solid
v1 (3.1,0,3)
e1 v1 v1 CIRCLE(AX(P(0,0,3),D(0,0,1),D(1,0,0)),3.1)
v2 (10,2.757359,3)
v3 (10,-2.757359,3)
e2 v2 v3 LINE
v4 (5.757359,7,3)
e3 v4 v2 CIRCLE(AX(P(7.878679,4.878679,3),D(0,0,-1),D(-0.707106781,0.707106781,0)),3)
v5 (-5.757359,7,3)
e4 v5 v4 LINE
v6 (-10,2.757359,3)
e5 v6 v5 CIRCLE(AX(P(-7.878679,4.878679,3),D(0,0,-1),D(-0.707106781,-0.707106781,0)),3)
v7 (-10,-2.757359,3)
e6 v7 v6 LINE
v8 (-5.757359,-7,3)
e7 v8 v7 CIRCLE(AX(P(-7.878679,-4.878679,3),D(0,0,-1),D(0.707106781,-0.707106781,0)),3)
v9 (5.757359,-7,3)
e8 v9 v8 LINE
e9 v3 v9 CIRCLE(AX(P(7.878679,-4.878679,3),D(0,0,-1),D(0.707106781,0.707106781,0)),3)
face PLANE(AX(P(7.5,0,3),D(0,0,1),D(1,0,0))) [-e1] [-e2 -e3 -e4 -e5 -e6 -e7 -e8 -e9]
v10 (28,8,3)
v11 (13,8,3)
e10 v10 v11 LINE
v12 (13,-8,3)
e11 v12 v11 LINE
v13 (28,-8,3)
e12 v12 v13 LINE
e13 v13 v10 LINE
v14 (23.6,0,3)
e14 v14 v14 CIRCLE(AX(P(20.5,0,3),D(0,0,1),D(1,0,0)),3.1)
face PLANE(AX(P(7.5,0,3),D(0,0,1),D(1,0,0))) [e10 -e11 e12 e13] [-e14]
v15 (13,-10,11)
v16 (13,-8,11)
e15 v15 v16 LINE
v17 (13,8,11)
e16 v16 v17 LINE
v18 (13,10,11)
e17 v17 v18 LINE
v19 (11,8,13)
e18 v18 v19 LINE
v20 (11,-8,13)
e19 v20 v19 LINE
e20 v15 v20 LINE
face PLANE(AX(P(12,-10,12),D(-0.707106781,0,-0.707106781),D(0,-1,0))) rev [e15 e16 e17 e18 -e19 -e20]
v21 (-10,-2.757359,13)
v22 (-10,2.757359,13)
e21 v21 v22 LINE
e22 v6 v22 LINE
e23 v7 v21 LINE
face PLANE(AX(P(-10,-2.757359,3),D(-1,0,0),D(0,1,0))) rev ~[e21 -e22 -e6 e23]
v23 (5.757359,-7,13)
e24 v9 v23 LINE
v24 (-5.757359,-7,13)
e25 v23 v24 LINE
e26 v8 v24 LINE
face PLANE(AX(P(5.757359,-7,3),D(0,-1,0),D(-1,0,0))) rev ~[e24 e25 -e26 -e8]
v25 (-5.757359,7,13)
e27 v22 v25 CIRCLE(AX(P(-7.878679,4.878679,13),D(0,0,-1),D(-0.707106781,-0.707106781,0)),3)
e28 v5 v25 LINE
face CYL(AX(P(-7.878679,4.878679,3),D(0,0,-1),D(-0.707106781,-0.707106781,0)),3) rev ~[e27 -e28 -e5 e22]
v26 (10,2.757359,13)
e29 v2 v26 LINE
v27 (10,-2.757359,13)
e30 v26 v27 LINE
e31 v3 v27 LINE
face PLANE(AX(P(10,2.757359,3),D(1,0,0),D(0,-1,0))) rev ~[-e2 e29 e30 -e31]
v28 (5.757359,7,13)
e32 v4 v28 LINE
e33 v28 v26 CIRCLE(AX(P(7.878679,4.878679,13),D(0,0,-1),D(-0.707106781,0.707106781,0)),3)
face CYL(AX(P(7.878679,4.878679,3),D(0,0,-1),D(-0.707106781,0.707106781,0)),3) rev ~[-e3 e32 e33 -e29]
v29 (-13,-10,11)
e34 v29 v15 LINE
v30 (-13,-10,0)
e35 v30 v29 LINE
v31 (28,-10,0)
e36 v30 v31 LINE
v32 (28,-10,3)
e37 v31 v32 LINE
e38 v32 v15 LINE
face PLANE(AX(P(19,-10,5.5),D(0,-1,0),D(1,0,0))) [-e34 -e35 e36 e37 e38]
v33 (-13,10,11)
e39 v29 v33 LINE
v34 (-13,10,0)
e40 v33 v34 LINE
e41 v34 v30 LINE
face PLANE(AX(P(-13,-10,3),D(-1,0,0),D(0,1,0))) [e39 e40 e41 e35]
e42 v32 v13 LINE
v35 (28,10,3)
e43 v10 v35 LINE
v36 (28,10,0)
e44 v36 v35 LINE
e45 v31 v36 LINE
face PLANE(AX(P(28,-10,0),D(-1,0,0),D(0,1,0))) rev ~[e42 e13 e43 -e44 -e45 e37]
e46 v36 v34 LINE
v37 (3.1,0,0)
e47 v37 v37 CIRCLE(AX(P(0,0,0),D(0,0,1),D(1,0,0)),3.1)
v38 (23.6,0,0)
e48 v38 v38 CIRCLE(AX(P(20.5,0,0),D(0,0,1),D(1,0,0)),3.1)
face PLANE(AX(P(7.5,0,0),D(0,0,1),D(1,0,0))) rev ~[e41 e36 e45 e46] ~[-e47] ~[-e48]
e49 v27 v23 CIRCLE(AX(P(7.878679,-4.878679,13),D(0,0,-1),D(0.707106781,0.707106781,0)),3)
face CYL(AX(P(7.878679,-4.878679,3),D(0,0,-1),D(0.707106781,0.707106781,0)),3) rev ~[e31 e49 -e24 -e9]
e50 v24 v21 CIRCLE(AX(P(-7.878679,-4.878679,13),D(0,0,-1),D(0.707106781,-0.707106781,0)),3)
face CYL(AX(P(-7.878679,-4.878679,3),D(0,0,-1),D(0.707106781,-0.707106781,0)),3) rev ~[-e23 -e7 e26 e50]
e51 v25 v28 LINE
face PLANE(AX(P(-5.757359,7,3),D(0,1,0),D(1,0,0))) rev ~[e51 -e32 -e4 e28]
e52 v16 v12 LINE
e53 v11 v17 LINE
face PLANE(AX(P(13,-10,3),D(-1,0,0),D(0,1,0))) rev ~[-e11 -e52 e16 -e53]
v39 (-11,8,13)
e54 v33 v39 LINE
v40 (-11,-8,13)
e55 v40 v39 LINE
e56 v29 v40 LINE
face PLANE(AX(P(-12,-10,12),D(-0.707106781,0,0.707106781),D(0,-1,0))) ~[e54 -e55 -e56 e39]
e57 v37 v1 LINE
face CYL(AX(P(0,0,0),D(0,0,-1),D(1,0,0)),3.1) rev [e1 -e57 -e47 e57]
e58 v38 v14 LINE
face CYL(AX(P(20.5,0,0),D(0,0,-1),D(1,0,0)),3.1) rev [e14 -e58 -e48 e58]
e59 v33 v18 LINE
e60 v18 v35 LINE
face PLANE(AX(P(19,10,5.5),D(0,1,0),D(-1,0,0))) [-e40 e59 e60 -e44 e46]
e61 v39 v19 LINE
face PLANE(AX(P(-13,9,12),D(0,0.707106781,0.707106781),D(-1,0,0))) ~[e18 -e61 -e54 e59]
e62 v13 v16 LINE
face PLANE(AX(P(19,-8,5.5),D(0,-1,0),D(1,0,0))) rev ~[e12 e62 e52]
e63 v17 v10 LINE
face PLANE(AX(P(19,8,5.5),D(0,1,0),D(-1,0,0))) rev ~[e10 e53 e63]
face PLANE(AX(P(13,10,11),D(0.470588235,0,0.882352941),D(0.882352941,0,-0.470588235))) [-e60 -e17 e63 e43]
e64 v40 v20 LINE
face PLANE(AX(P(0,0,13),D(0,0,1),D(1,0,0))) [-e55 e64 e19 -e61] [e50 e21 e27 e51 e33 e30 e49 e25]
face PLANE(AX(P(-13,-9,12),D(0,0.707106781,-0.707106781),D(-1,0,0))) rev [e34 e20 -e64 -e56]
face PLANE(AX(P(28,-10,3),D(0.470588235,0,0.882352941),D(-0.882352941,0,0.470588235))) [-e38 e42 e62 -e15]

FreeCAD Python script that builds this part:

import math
import FreeCAD as App
import Part
import Sketcher
Q = App.Units.Quantity


def edges_at(feature, points):
    """Names of the edges that pass closest to the given points."""
    edges = feature.Shape.Edges
    near = lambda p: min(range(len(edges)), key=lambda i: edges[i].distToShape(Part.Vertex(*p))[0])
    return sorted({f"Edge{near(p) + 1}" for p in points})


def add_polygon(sketch, points):
    """Adds a closed chain of lines whose ends are joined by coincident constraints."""
    first, n = sketch.GeometryCount, len(points)
    for a, b in zip(points, points[1:] + points[:1]):
        sketch.addGeometry(Part.LineSegment(App.Vector(*a, 0), App.Vector(*b, 0)), False)
    for i in range(n):
        sketch.addConstraint(Sketcher.Constraint("Coincident", first + i, 2, first + (i + 1) % n, 1))

doc = App.newDocument("Part")
body = doc.addObject("PartDesign::Body", "Body")

sketch1 = doc.addObject("Sketcher::SketchObject", "Sketch")
body.addObject(sketch1)
sketch1.AttachmentSupport = (doc.XY_Plane, [""])
sketch1.MapMode = "FlatFace"
add_polygon(sketch1, [(-13, -10), (28, -10), (28, 10), (-13, 10)])
sketch1.addGeometry(Part.Circle(App.Vector(0, 0, 0), App.Vector(0, 0, 1), 3.1), False)
sketch1.addGeometry(Part.Circle(App.Vector(20.5, 0, 0), App.Vector(0, 0, 1), 3.1), False)
sketch1.addConstraint([
    Sketcher.Constraint("Horizontal", 0),
    Sketcher.Constraint("Vertical", 1),
    Sketcher.Constraint("Horizontal", 2),
    Sketcher.Constraint("Vertical", 3),
    Sketcher.Constraint("Coincident", 4, 3, -1, 1),
    Sketcher.Constraint("Equal", 4, 5),
    Sketcher.Constraint("PointOnObject", 5, 3, -1),
    Sketcher.Constraint("Diameter", 4, Q("6.2 mm")),
    Sketcher.Constraint("DistanceX", 0, 1, 0, 2, Q("41 mm")),
    Sketcher.Constraint("DistanceY", 1, 1, 1, 2, Q("20 mm")),
    Sketcher.Constraint("DistanceX", -1, 1, 0, 2, Q("28 mm")),
    Sketcher.Constraint("DistanceY", 0, 2, -1, 1, Q("10 mm")),
    Sketcher.Constraint("DistanceX", -1, 1, 5, 3, Q("20.5 mm")),
])
pad1 = doc.addObject("PartDesign::Pad", "Pad")
body.addObject(pad1)
pad1.Profile = sketch1
pad1.Length = 3

sketch2 = doc.addObject("Sketcher::SketchObject", "Sketch001")
body.addObject(sketch2)
sketch2.AttachmentSupport = (doc.XY_Plane, [""])
sketch2.MapMode = "FlatFace"
sketch2.AttachmentOffset = App.Placement(App.Vector(0, 0, 3), App.Rotation())
add_polygon(sketch2, [(-13, 10), (-13, -10), (13, -10), (13, 10)])
sketch2.addGeometry(Part.LineSegment(App.Vector(-10, -2.8, 0), App.Vector(-10, 2.8, 0)), False)
sketch2.addGeometry(Part.ArcOfCircle(Part.Circle(App.Vector(-7.9, 4.9, 0), App.Vector(0, 0, 1), 3), math.radians(45), math.radians(225)), False)
sketch2.addGeometry(Part.LineSegment(App.Vector(-5.8, 7, 0), App.Vector(5.8, 7, 0)), False)
sketch2.addGeometry(Part.ArcOfCircle(Part.Circle(App.Vector(7.9, 4.9, 0), App.Vector(0, 0, 1), 3), math.radians(-45), math.radians(135)), False)
sketch2.addGeometry(Part.LineSegment(App.Vector(10, 2.8, 0), App.Vector(10, -2.8, 0)), False)
sketch2.addGeometry(Part.ArcOfCircle(Part.Circle(App.Vector(7.9, -4.9, 0), App.Vector(0, 0, 1), 3), math.radians(-135), math.radians(45)), False)
sketch2.addGeometry(Part.LineSegment(App.Vector(5.8, -7, 0), App.Vector(-5.8, -7, 0)), False)
sketch2.addGeometry(Part.ArcOfCircle(Part.Circle(App.Vector(-7.9, -4.9, 0), App.Vector(0, 0, 1), 3), math.radians(135), math.radians(315)), False)
sketch2.addConstraint([
    Sketcher.Constraint("Coincident", 4, 2, 5, 2),
    Sketcher.Constraint("Coincident", 5, 1, 6, 1),
    Sketcher.Constraint("Coincident", 6, 2, 7, 2),
    Sketcher.Constraint("Coincident", 7, 1, 8, 1),
    Sketcher.Constraint("Coincident", 8, 2, 9, 2),
    Sketcher.Constraint("Coincident", 9, 1, 10, 1),
    Sketcher.Constraint("Coincident", 10, 2, 11, 2),
    Sketcher.Constraint("Coincident", 11, 1, 4, 1),
    Sketcher.Constraint("Vertical", 0),
    Sketcher.Constraint("Horizontal", 1),
    Sketcher.Constraint("Vertical", 2),
    Sketcher.Constraint("Horizontal", 3),
    Sketcher.Constraint("Vertical", 4),
    Sketcher.Constraint("Horizontal", 6),
    Sketcher.Constraint("Vertical", 8),
    Sketcher.Constraint("Horizontal", 10),
    Sketcher.Constraint("Equal", 5, 7),
    Sketcher.Constraint("Equal", 7, 9),
    Sketcher.Constraint("Equal", 9, 11),
    Sketcher.Constraint("Symmetric", 5, 3, 9, 3, -1, 1),
    Sketcher.Constraint("Symmetric", 7, 3, 11, 3, -1, 1),
    Sketcher.Constraint("Symmetric", 0, 2, 2, 2, -1, 1),
    Sketcher.Constraint("Symmetric", 5, 3, 7, 3, -2),
    Sketcher.Constraint("Horizontal", 4, 2, 7, 1),
    Sketcher.Constraint("Vertical", 6, 2, 9, 1),
    Sketcher.Constraint("Radius", 5, Q("3 mm")),
    Sketcher.Constraint("DistanceX", 1, 1, 1, 2, Q("26 mm")),
    Sketcher.Constraint("DistanceY", 0, 2, 0, 1, Q("20 mm")),
    Sketcher.Constraint("DistanceX", 4, 2, -1, 1, Q("10 mm")),
    Sketcher.Constraint("DistanceY", -1, 1, 5, 1, Q("7 mm")),
    Sketcher.Constraint("DistanceY", 4, 1, 4, 2, Q("5.514718 mm")),
    Sketcher.Constraint("DistanceX", 5, 3, -1, 1, Q("7.878679 mm")),
])
pad2 = doc.addObject("PartDesign::Pad", "Pad001")
body.addObject(pad2)
pad2.Profile = sketch2
pad2.Length = 10
doc.recompute()

chamfer = doc.addObject("PartDesign::Chamfer", "Chamfer")
body.addObject(chamfer)
chamfer.Base = (pad2, edges_at(pad2, [
    (0, -10, 13),
    (13, 0, 13),
    (0, 10, 13),
    (-13, 0, 13),
]))
chamfer.Size = 2

sketch3 = doc.addObject("Sketcher::SketchObject", "Sketch002")
body.addObject(sketch3)
sketch3.AttachmentSupport = (doc.XZ_Plane, [""])
sketch3.MapMode = "FlatFace"
sketch3.AttachmentOffset = App.Placement(App.Vector(0, 0, 10), App.Rotation())
add_polygon(sketch3, [(28, 3), (13, 11), (13, 3)])
sketch3.addConstraint([
    Sketcher.Constraint("Vertical", 1),
    Sketcher.Constraint("Horizontal", 2),
    Sketcher.Constraint("DistanceX", 2, 1, 2, 2, Q("15 mm")),
    Sketcher.Constraint("DistanceY", 1, 2, 1, 1, Q("8 mm")),
    Sketcher.Constraint("DistanceX", -1, 1, 0, 2, Q("13 mm")),
    Sketcher.Constraint("DistanceY", -1, 1, 0, 2, Q("11 mm")),
])
pad3 = doc.addObject("PartDesign::Pad", "Pad002")
body.addObject(pad3)
pad3.Profile = sketch3
pad3.Length = 2
pad3.Reversed = True

sketch4 = doc.addObject("Sketcher::SketchObject", "Sketch003")
body.addObject(sketch4)
sketch4.AttachmentSupport = (doc.XZ_Plane, [""])
sketch4.MapMode = "FlatFace"
sketch4.AttachmentOffset = App.Placement(App.Vector(0, 0, -10), App.Rotation())
add_polygon(sketch4, [(13, 3), (13, 11), (28, 3)])
sketch4.addConstraint([
    Sketcher.Constraint("Vertical", 0),
    Sketcher.Constraint("Horizontal", 2),
    Sketcher.Constraint("DistanceX", 2, 2, 2, 1, Q("15 mm")),
    Sketcher.Constraint("DistanceY", 0, 1, 0, 2, Q("8 mm")),
    Sketcher.Constraint("DistanceX", -1, 1, 0, 2, Q("13 mm")),
    Sketcher.Constraint("DistanceY", -1, 1, 0, 2, Q("11 mm")),
])
pad4 = doc.addObject("PartDesign::Pad", "Pad003")
body.addObject(pad4)
pad4.Profile = sketch4
pad4.Length = 2

doc.recompute()
